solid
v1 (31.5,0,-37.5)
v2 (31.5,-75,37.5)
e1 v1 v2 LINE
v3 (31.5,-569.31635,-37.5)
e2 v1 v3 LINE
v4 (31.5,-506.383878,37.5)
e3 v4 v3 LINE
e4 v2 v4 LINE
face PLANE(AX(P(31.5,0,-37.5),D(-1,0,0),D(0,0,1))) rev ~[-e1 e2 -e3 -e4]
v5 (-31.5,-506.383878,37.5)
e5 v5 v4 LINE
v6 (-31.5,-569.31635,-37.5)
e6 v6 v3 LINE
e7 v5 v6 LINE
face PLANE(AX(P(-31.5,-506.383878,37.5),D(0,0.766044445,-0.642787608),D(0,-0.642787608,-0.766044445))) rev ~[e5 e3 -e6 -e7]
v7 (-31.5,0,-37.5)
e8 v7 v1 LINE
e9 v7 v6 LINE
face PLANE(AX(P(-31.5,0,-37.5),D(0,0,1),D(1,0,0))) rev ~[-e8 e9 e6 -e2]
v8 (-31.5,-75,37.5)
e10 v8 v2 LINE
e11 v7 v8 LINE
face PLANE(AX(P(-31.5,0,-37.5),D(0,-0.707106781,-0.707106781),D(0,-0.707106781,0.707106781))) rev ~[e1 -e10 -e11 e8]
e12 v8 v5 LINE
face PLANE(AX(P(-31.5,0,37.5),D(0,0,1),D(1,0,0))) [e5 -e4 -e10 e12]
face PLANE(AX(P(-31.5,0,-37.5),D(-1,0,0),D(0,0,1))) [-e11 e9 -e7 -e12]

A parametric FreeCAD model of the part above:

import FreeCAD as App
import Part
import Sketcher

V = App.Vector
Q = App.Units.Quantity


def add_polygon(sketch, points):
    """Adds a closed chain of lines whose ends are joined by coincident constraints."""
    first, n = sketch.GeometryCount, len(points)
    for a, b in zip(points, points[1:] + points[:1]):
        sketch.addGeometry(Part.LineSegment(App.Vector(*a, 0), App.Vector(*b, 0)), False)
    for i in range(n):
        sketch.addConstraint(Sketcher.Constraint("Coincident", first + i, 2, first + (i + 1) % n, 1))

doc = App.newDocument("Part")
body = doc.addObject("PartDesign::Body", "Body")

# Sketch on XZ plane
sketch1 = doc.addObject("Sketcher::SketchObject", "Sketch")
body.addObject(sketch1)
sketch1.AttachmentSupport = (doc.XZ_Plane, [""])
sketch1.MapMode = "FlatFace"
add_polygon(sketch1, [(-32, 38), (-32, -38), (32, -38), (32, 38)])  # lines 0-3
sketch1.addConstraint(Sketcher.Constraint("Vertical", 0))
sketch1.addConstraint(Sketcher.Constraint("Horizontal", 1))
sketch1.addConstraint(Sketcher.Constraint("Vertical", 2))
sketch1.addConstraint(Sketcher.Constraint("Horizontal", 3))
sketch1.addConstraint(Sketcher.Constraint("Symmetric", 0, 2, 2, 2, -1, 1))
sketch1.addConstraint(Sketcher.Constraint("DistanceX", 1, 1, 1, 2, 63.0))
sketch1.addConstraint(Sketcher.Constraint("DistanceY", 0, 2, 0, 1, 75.0))
pad1 = doc.addObject("PartDesign::Pad", "Pad")
body.addObject(pad1)
pad1.Profile = sketch1
pad1.Length = 569.31635

# Sketch on YZ plane
sketch2 = doc.addObject("Sketcher::SketchObject", "Sketch001")
body.addObject(sketch2)
sketch2.AttachmentSupport = (doc.YZ_Plane, [""])
sketch2.MapMode = "FlatFace"
sketch2.AttachmentOffset = App.Placement(V(0, 0, -31.5), App.Rotation())
add_polygon(sketch2, [(0, 38), (0, -38), (-75, 38)])  # lines 0-2
add_polygon(sketch2, [(-506, 38), (-569, -38), (-569, 38)])  # lines 3-5
sketch2.addConstraint(Sketcher.Constraint("Vertical", 0))
sketch2.addConstraint(Sketcher.Constraint("Horizontal", 2))
sketch2.addConstraint(Sketcher.Constraint("Vertical", 4))
sketch2.addConstraint(Sketcher.Constraint("Horizontal", 5))
sketch2.addConstraint(Sketcher.Constraint("Symmetric", 0, 2, 2, 2, -1, 1))
sketch2.addConstraint(Sketcher.Constraint("Horizontal", 0, 2, 3, 2))
sketch2.addConstraint(Sketcher.Constraint("Horizontal", 2, 2, 4, 2))
sketch2.addConstraint(Sketcher.Constraint("Equal", 2, 0))
sketch2.addConstraint(Sketcher.Constraint("DistanceX", 2, 1, 2, 2, 75.0))
sketch2.addConstraint(Sketcher.Constraint("Angle", 3, Q("-130 deg")))
sketch2.addConstraint(Sketcher.Constraint("DistanceX", 3, 2, -1, 1, 569.31635))
pocket1 = doc.addObject("PartDesign::Pocket", "Pocket")
body.addObject(pocket1)
pocket1.Profile = sketch2
pocket1.Type = "ThroughAll"
pocket1.Reversed = True

doc.recompute()
